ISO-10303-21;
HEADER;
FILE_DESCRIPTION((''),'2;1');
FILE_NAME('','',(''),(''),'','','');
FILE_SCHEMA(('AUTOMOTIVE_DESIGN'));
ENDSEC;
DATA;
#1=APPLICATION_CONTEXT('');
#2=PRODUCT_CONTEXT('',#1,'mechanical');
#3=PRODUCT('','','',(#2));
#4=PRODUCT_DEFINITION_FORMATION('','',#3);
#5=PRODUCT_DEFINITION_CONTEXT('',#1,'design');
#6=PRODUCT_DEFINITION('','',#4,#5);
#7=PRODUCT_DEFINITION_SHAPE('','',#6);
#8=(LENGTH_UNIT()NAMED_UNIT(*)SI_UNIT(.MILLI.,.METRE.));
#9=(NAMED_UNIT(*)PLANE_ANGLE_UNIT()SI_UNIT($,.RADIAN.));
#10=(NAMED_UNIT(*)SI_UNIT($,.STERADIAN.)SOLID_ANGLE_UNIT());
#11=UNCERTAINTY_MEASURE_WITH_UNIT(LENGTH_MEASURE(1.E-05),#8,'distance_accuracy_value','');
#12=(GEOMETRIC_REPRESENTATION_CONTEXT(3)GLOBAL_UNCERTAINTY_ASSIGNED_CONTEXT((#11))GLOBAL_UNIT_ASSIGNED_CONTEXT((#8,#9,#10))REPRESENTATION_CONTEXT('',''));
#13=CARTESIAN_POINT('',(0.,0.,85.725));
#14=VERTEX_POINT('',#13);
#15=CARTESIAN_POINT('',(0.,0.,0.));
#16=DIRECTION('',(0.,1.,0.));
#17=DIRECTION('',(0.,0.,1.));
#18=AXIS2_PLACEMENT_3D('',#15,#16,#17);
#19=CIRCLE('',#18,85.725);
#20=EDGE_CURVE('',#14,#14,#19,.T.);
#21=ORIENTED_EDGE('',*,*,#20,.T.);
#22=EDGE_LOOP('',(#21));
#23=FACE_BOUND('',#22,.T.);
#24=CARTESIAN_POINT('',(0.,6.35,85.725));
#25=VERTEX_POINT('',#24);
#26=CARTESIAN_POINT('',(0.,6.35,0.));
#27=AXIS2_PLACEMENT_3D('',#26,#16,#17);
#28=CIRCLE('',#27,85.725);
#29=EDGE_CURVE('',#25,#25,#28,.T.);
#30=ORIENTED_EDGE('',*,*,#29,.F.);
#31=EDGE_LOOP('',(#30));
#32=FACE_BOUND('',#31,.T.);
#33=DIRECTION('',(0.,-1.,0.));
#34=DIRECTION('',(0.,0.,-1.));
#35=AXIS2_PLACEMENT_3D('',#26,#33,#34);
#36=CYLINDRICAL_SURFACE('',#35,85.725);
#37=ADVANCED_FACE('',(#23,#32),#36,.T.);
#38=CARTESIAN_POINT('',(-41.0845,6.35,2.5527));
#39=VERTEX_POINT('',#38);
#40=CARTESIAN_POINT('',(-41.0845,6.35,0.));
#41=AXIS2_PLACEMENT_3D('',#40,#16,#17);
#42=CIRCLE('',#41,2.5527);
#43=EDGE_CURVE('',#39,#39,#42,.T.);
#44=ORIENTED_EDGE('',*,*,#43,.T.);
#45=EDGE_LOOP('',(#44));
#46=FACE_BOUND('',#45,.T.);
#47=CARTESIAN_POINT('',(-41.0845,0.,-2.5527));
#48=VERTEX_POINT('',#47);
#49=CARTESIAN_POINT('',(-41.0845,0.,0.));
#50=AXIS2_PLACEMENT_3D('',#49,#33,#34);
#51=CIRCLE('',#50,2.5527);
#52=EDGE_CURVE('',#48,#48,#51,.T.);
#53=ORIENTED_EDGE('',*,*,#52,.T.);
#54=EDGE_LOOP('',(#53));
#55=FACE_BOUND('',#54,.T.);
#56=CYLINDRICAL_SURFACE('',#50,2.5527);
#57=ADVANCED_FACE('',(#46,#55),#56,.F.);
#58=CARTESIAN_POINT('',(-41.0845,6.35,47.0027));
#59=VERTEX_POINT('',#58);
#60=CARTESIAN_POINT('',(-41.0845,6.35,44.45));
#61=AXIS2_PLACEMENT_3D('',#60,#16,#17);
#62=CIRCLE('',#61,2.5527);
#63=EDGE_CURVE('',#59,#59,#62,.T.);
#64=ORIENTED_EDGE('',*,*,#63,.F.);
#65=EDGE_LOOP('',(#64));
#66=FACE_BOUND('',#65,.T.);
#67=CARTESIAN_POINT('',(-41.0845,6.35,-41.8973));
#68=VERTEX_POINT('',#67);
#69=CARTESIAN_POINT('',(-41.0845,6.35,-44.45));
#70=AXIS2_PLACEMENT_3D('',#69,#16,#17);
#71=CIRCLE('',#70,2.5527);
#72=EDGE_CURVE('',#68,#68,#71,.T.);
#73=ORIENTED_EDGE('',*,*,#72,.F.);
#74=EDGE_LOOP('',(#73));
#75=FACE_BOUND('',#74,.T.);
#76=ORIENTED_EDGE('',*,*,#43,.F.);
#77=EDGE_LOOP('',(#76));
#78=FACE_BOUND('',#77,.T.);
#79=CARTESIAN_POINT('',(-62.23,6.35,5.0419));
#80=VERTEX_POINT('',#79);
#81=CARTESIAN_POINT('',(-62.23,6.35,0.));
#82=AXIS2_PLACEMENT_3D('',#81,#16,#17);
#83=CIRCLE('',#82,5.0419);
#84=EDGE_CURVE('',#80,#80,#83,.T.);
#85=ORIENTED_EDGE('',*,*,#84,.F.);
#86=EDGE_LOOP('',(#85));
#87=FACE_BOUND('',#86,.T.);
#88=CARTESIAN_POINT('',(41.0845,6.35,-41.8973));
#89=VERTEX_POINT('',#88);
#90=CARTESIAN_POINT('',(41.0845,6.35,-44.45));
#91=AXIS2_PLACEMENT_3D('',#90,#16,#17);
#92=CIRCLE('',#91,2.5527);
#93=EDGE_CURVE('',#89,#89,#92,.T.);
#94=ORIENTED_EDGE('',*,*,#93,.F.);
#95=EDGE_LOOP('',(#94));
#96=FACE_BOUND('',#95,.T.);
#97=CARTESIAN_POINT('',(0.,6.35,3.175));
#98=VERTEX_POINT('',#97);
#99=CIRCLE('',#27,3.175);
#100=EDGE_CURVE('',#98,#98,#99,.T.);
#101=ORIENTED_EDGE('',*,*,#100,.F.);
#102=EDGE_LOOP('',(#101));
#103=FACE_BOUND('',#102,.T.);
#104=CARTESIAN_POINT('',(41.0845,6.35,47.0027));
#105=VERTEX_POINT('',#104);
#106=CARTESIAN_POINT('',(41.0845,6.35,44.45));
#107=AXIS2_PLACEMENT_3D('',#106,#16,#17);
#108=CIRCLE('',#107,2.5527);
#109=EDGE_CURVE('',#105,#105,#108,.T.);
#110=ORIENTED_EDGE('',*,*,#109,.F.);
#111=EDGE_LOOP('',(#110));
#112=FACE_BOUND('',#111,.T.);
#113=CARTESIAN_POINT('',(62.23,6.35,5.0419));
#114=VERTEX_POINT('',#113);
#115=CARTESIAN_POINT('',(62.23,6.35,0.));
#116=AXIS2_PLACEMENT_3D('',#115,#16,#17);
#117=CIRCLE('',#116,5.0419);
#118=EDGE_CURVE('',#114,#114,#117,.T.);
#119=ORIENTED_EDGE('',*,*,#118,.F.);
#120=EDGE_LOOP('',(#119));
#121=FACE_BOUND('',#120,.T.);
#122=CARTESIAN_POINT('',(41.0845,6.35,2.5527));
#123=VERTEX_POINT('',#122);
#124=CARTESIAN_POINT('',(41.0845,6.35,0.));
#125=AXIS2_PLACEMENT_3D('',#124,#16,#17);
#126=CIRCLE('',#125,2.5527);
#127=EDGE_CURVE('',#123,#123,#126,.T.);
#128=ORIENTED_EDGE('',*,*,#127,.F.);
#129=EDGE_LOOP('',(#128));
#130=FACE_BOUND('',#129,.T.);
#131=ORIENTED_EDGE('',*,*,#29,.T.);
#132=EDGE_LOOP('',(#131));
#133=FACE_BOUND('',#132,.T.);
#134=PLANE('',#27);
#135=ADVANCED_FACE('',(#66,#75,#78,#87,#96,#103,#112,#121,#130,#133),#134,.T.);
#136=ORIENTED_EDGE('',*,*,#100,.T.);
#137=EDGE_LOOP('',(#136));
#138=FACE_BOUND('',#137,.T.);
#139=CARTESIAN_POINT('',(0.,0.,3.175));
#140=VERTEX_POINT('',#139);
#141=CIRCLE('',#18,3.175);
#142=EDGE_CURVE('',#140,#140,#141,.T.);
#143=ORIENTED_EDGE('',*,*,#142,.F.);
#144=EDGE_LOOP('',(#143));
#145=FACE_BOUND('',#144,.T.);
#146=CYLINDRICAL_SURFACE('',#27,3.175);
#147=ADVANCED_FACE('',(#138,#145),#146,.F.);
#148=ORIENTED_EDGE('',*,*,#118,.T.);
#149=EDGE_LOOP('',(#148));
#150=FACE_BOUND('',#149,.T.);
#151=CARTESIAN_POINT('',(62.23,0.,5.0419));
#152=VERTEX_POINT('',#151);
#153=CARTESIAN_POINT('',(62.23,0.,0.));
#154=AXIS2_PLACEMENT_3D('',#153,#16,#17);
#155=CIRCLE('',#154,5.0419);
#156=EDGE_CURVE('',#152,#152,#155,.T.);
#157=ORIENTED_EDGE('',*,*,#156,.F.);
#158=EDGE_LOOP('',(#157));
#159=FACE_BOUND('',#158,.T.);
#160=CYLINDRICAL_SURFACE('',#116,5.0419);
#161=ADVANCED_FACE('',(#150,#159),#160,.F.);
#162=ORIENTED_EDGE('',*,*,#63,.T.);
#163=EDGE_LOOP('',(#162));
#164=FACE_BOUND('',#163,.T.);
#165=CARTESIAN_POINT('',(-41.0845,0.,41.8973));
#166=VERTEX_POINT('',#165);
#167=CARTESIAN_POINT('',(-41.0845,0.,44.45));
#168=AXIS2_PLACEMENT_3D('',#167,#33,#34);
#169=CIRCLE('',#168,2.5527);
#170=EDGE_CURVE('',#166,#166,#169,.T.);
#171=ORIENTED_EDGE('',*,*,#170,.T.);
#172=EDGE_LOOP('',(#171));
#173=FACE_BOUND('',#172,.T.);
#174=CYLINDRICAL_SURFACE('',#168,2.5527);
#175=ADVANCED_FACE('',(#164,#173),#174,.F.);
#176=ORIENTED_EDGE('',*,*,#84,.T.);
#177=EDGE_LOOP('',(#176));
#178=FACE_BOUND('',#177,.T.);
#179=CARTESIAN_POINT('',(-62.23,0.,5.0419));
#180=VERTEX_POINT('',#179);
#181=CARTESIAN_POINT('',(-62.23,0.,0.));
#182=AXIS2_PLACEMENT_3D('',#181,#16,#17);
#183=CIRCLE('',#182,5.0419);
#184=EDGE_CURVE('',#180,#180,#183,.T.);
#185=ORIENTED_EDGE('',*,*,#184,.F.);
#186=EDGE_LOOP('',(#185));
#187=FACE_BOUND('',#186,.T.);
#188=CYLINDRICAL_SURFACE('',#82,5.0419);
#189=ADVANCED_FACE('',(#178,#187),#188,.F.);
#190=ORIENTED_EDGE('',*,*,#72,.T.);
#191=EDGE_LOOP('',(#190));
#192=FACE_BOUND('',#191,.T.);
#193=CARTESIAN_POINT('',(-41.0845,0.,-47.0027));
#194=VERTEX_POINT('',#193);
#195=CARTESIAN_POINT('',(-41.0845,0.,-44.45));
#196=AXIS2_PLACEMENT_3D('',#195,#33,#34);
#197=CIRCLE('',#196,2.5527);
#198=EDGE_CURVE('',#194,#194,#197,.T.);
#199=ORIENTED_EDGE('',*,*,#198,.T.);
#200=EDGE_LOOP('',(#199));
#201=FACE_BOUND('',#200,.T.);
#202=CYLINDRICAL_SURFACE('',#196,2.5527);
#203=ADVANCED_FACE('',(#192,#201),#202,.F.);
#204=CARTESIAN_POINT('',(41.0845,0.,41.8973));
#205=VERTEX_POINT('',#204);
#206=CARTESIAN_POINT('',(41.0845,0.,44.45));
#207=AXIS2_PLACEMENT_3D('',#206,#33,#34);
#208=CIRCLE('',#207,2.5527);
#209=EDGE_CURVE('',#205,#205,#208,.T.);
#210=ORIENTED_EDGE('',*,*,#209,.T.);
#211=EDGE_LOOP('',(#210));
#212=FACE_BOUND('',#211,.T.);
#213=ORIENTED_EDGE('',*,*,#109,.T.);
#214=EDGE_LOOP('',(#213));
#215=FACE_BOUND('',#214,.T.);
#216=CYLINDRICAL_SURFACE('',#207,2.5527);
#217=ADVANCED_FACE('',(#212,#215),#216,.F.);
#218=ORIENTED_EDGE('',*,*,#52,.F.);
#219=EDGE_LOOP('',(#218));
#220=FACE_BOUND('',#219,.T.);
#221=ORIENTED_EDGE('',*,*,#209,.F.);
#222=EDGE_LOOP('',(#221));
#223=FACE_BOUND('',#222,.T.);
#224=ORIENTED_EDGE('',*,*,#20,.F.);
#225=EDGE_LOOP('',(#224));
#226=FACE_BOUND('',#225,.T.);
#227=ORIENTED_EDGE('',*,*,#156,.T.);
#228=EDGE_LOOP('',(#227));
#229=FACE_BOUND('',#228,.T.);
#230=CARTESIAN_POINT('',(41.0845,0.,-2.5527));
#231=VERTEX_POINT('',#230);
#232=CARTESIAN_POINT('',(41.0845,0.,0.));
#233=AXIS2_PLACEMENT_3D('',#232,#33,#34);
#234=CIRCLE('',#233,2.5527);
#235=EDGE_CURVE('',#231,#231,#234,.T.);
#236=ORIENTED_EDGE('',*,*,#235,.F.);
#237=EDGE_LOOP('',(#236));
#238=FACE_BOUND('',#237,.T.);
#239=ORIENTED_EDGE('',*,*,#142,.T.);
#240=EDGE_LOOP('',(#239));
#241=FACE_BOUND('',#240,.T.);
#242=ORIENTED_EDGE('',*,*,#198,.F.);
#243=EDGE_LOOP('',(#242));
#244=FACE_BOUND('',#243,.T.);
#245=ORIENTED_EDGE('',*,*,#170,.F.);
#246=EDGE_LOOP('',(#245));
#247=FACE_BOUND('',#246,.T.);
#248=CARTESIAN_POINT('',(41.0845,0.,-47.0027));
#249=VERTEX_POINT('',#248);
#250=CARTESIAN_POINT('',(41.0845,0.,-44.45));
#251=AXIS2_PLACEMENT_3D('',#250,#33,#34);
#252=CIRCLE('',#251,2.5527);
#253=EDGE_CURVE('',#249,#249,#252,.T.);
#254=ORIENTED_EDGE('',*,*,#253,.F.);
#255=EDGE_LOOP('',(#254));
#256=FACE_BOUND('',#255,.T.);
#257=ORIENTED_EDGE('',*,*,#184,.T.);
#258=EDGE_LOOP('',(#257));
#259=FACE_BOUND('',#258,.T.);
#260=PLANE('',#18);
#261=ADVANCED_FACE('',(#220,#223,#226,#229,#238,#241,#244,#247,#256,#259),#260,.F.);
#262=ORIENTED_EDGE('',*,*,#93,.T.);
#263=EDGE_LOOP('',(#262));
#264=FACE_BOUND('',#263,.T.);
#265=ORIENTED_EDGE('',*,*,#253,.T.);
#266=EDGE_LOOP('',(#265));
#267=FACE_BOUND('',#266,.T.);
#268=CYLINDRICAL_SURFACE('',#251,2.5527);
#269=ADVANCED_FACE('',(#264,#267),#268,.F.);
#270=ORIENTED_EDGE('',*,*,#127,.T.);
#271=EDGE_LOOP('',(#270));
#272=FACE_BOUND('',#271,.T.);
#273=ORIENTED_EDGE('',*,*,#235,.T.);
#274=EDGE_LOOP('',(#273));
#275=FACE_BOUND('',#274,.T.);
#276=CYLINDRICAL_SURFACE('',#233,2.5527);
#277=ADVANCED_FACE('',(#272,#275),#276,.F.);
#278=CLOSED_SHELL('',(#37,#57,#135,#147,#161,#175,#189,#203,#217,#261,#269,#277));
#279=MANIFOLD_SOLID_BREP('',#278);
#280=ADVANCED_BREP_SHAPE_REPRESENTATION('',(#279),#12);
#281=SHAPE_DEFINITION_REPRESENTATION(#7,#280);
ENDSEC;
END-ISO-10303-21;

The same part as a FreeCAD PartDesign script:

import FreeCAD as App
import Part
import Sketcher

V = App.Vector
Q = App.Units.Quantity

doc = App.newDocument("Part")
params = doc.addObject("Spreadsheet::Sheet", "Params")
for row, (alias, value) in enumerate([
    ("sketch1_diameter", "6.75 in"),
    ("pad1_length", "0.25 in"),
    ("sketch2_diameter", "0.397 in"),
    ("hole_diameter", "0.397 in"),
    ("sketch3_diameter", "0.25 in"),
    ("hole2_diameter", "0.25 in"),
    ("sketch4_diameter", "0.201 in"),
    ("hole3_diameter", "0.201 in"),
    ("hole3_depth", "0.25 in"),
], start=1):
    params.set(f"A{row}", alias)
    params.set(f"B{row}", "=" + value)
    params.setAlias(f"B{row}", alias)

body = doc.addObject("PartDesign::Body", "Body")

# Sketch on XZ plane
sketch1 = doc.addObject("Sketcher::SketchObject", "Sketch")
body.addObject(sketch1)
sketch1.AttachmentSupport = (doc.XZ_Plane, [""])
sketch1.MapMode = "FlatFace"
sketch1.addGeometry(Part.Circle(V(0, 0, 0), V(0, 0, 1), 86), False)
sketch1.addConstraint([
    Sketcher.Constraint("Coincident", 0, 3, -1, 1),
    Sketcher.Constraint("Diameter", 0, Q("6.75 in")),
])
sketch1.setExpression("Constraints[1]", "Params.sketch1_diameter")
pad1 = doc.addObject("PartDesign::Pad", "Pad")
body.addObject(pad1)
pad1.Profile = sketch1
pad1.setExpression("Length", "Params.pad1_length")
pad1.Reversed = True

# Sketch on XZ plane
sketch2 = doc.addObject("Sketcher::SketchObject", "Sketch001")
body.addObject(sketch2)
sketch2.AttachmentSupport = (doc.XZ_Plane, [""])
sketch2.MapMode = "FlatFace"
sketch2.AttachmentOffset = App.Placement(V(0, 0, -0.25 * 25.4), App.Rotation())
sketch2.addGeometry([
    Part.Circle(V(-62, 0, 0), V(0, 0, 1), 5),
    Part.Circle(V(62, 0, 0), V(0, 0, 1), 5),
], False)
sketch2.addConstraint([
    Sketcher.Constraint("Equal", 0, 1),
    Sketcher.Constraint("Symmetric", 0, 3, 1, 3, -1, 1),
    Sketcher.Constraint("PointOnObject", 0, 3, -1),
    Sketcher.Constraint("Diameter", 0, Q("0.397 in")),
    Sketcher.Constraint("DistanceX", 0, 3, 1, 3, Q("4.9 in")),
])
sketch2.setExpression("Constraints[3]", "Params.sketch2_diameter")
doc.recompute()
hole = doc.addObject("PartDesign::Hole", "Hole")
body.addObject(hole)
hole.Profile = sketch2
hole.ThreadType = "None"
hole.setExpression("Diameter", "Params.hole_diameter")
hole.DepthType = "ThroughAll"
hole.Reversed = True

# Sketch on XZ plane
sketch3 = doc.addObject("Sketcher::SketchObject", "Sketch002")
body.addObject(sketch3)
sketch3.AttachmentSupport = (doc.XZ_Plane, [""])
sketch3.MapMode = "FlatFace"
sketch3.AttachmentOffset = App.Placement(V(0, 0, -0.25 * 25.4), App.Rotation())
sketch3.addGeometry(Part.Circle(V(0, 0, 0), V(0, 0, 1), 3.2), False)
sketch3.addConstraint([
    Sketcher.Constraint("Coincident", 0, 3, -1, 1),
    Sketcher.Constraint("Diameter", 0, Q("0.25 in")),
])
sketch3.setExpression("Constraints[1]", "Params.sketch3_diameter")
doc.recompute()
hole2 = doc.addObject("PartDesign::Hole", "Hole001")
body.addObject(hole2)
hole2.Profile = sketch3
hole2.ThreadType = "None"
hole2.setExpression("Diameter", "Params.hole2_diameter")
hole2.DepthType = "ThroughAll"
hole2.Reversed = True

# Sketch on XZ plane
sketch4 = doc.addObject("Sketcher::SketchObject", "Sketch003")
body.addObject(sketch4)
sketch4.AttachmentSupport = (doc.XZ_Plane, [""])
sketch4.MapMode = "FlatFace"
sketch4.addGeometry([
    Part.Circle(V(-62.2, 0, 0), V(0, 0, 1), 2.6),  # 0
    Part.Circle(V(62.2, 0, 0), V(0, 0, 1), 2.6),  # 1
    Part.Circle(V(41.1, 0, 0), V(0, 0, 1), 2.6),  # 2
    Part.Circle(V(41.1, -44.5, 0), V(0, 0, 1), 2.6),  # 3
    Part.Circle(V(-41.1, -44.4, 0), V(0, 0, 1), 2.6),  # 4
    Part.Circle(V(-41.1, 44.5, 0), V(0, 0, 1), 2.6),  # 5
    Part.Circle(V(-41.1, 0, 0), V(0, 0, 1), 2.6),  # 6
    Part.Circle(V(41.1, 44.4, 0), V(0, 0, 1), 2.6),  # 7
], False)
sketch4.addConstraint([
    Sketcher.Constraint("Equal", 0, 1),
    Sketcher.Constraint("Equal", 1, 2),
    Sketcher.Constraint("Equal", 2, 3),
    Sketcher.Constraint("Equal", 3, 4),
    Sketcher.Constraint("Equal", 4, 5),
    Sketcher.Constraint("Equal", 5, 6),
    Sketcher.Constraint("Equal", 6, 7),
    Sketcher.Constraint("Symmetric", 0, 3, 1, 3, -1, 1),
    Sketcher.Constraint("Symmetric", 3, 3, 5, 3, -1, 1),
    Sketcher.Constraint("Symmetric", 2, 3, 6, 3, -1, 1),
    Sketcher.Constraint("Symmetric", 4, 3, 7, 3, -1, 1),
    Sketcher.Constraint("Symmetric", 3, 3, 4, 3, -2),
    Sketcher.Constraint("PointOnObject", 0, 3, -1),
    Sketcher.Constraint("PointOnObject", 2, 3, -1),
    Sketcher.Constraint("Vertical", 2, 3, 3, 3),
    Sketcher.Constraint("Diameter", 0, Q("0.201 in")),
    Sketcher.Constraint("DistanceX", 0, 3, 1, 3, Q("4.9 in")),
    Sketcher.Constraint("DistanceY", 4, 3, 5, 3, Q("3.5 in")),
    Sketcher.Constraint("DistanceX", 4, 3, 3, 3, Q("3.235 in")),
])
sketch4.setExpression("Constraints[15]", "Params.sketch4_diameter")
doc.recompute()
hole3 = doc.addObject("PartDesign::Hole", "Hole002")
body.addObject(hole3)
hole3.Profile = sketch4
hole3.ThreadType = "None"
hole3.setExpression("Diameter", "Params.hole3_diameter")
hole3.DepthType = "Dimension"
hole3.setExpression("Depth", "Params.hole3_depth")
hole3.DrillPoint = "Flat"

doc.recompute()
